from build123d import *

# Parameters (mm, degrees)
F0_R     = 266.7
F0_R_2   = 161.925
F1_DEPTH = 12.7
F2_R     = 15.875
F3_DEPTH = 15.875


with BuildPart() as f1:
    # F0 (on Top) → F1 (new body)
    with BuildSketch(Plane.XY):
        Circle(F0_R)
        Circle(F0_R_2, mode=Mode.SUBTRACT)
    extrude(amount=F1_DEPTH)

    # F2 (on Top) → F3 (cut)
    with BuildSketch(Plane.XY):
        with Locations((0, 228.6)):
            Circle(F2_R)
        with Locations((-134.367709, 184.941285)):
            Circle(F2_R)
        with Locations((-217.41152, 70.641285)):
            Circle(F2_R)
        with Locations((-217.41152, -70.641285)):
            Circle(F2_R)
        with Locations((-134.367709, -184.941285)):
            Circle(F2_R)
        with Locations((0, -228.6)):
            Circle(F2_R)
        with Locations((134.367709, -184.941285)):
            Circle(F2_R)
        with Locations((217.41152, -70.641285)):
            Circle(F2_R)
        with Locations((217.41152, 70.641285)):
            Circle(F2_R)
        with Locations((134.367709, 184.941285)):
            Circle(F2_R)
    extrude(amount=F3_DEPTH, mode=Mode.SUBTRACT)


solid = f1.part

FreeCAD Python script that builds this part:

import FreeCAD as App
import Part
import Sketcher
from FreeCAD import Vector
Q = App.Units.Quantity

doc = App.newDocument("Part")
params = doc.addObject("Spreadsheet::Sheet", "Params")
for row, (alias, value) in enumerate([
    ("sketch1_diameter", "21 in"),
    ("sketch1_diameter2", "12.75 in"),
    ("pad1_length", "0.5 in"),
    ("sketch2_diameter", "1.25 in"),
    ("pocket1_length", "0.625 in"),
], start=1):
    params.set(f"A{row}", alias)
    params.set(f"B{row}", "=" + value)
    params.setAlias(f"B{row}", alias)

body = doc.addObject("PartDesign::Body", "Body")

# Sketch on XY plane
sketch1 = doc.addObject("Sketcher::SketchObject", "Sketch")
body.addObject(sketch1)
sketch1.AttachmentSupport = (doc.XY_Plane, [""])
sketch1.MapMode = "FlatFace"
sketch1.addGeometry(Part.Circle(Vector(0, 0, 0), Vector(0, 0, 1), 267), False)
sketch1.addGeometry(Part.Circle(Vector(0, 0, 0), Vector(0, 0, 1), 162), False)
sketch1.addConstraint(Sketcher.Constraint("Coincident", 0, 3, -1, 1))
sketch1.addConstraint(Sketcher.Constraint("Coincident", 1, 3, -1, 1))
sketch1.addConstraint(Sketcher.Constraint("Diameter", 0, Q("21 in")))
sketch1.addConstraint(Sketcher.Constraint("Diameter", 1, Q("12.75 in")))
sketch1.setExpression("Constraints[2]", "Params.sketch1_diameter")
sketch1.setExpression("Constraints[3]", "Params.sketch1_diameter2")
pad1 = doc.addObject("PartDesign::Pad", "Pad")
body.addObject(pad1)
pad1.Profile = sketch1
pad1.setExpression("Length", "Params.pad1_length")

# Sketch on XY plane
sketch2 = doc.addObject("Sketcher::SketchObject", "Sketch001")
body.addObject(sketch2)
sketch2.AttachmentSupport = (doc.XY_Plane, [""])
sketch2.MapMode = "FlatFace"
sketch2.addGeometry(Part.Circle(Vector(0, 229, 0), Vector(0, 0, 1), 16), False)
sketch2.addGeometry(Part.Circle(Vector(-134, 185, 0), Vector(0, 0, 1), 16), False)
sketch2.addGeometry(Part.Circle(Vector(-217, 71, 0), Vector(0, 0, 1), 16), False)
sketch2.addGeometry(Part.Circle(Vector(-217, -71, 0), Vector(0, 0, 1), 16), False)
sketch2.addGeometry(Part.Circle(Vector(-134, -185, 0), Vector(0, 0, 1), 16), False)
sketch2.addGeometry(Part.Circle(Vector(0, -229, 0), Vector(0, 0, 1), 16), False)
sketch2.addGeometry(Part.Circle(Vector(134, -185, 0), Vector(0, 0, 1), 16), False)
sketch2.addGeometry(Part.Circle(Vector(217, -71, 0), Vector(0, 0, 1), 16), False)
sketch2.addGeometry(Part.Circle(Vector(217, 71, 0), Vector(0, 0, 1), 16), False)
sketch2.addGeometry(Part.Circle(Vector(134, 185, 0), Vector(0, 0, 1), 16), False)
sketch2.addConstraint(Sketcher.Constraint("Equal", 0, 1))
sketch2.addConstraint(Sketcher.Constraint("Equal", 1, 2))
sketch2.addConstraint(Sketcher.Constraint("Equal", 2, 3))
sketch2.addConstraint(Sketcher.Constraint("Equal", 3, 4))
sketch2.addConstraint(Sketcher.Constraint("Equal", 4, 5))
sketch2.addConstraint(Sketcher.Constraint("Equal", 5, 6))
sketch2.addConstraint(Sketcher.Constraint("Equal", 6, 7))
sketch2.addConstraint(Sketcher.Constraint("Equal", 7, 8))
sketch2.addConstraint(Sketcher.Constraint("Equal", 8, 9))
sketch2.addConstraint(Sketcher.Constraint("Symmetric", 0, 3, 5, 3, -1, 1))
sketch2.addConstraint(Sketcher.Constraint("Symmetric", 1, 3, 6, 3, -1, 1))
sketch2.addConstraint(Sketcher.Constraint("Symmetric", 2, 3, 7, 3, -1, 1))
sketch2.addConstraint(Sketcher.Constraint("Symmetric", 3, 3, 8, 3, -1, 1))
sketch2.addConstraint(Sketcher.Constraint("Symmetric", 4, 3, 9, 3, -1, 1))
sketch2.addConstraint(Sketcher.Constraint("Symmetric", 4, 3, 6, 3, -2))
sketch2.addConstraint(Sketcher.Constraint("Symmetric", 3, 3, 7, 3, -2))
sketch2.addConstraint(Sketcher.Constraint("PointOnObject", 0, 3, -2))
sketch2.addConstraint(Sketcher.Constraint("Diameter", 0, Q("1.25 in")))
sketch2.addConstraint(Sketcher.Constraint("DistanceY", -1, 1, 0, 3, Q("9 in")))
sketch2.addConstraint(Sketcher.Constraint("DistanceY", 2, 3, 1, 3, Q("4.5 in")))
sketch2.addConstraint(Sketcher.Constraint("DistanceX", 1, 3, -1, 1, 134.367709))
sketch2.addConstraint(Sketcher.Constraint("DistanceX", 2, 3, -1, 1, 217.41152))
sketch2.addConstraint(Sketcher.Constraint("DistanceY", 3, 3, 2, 3, 141.28257))
sketch2.setExpression("Constraints[17]", "Params.sketch2_diameter")
pocket1 = doc.addObject("PartDesign::Pocket", "Pocket")
body.addObject(pocket1)
pocket1.Profile = sketch2
pocket1.setExpression("Length", "Params.pocket1_length")
pocket1.Reversed = True

doc.recompute()
